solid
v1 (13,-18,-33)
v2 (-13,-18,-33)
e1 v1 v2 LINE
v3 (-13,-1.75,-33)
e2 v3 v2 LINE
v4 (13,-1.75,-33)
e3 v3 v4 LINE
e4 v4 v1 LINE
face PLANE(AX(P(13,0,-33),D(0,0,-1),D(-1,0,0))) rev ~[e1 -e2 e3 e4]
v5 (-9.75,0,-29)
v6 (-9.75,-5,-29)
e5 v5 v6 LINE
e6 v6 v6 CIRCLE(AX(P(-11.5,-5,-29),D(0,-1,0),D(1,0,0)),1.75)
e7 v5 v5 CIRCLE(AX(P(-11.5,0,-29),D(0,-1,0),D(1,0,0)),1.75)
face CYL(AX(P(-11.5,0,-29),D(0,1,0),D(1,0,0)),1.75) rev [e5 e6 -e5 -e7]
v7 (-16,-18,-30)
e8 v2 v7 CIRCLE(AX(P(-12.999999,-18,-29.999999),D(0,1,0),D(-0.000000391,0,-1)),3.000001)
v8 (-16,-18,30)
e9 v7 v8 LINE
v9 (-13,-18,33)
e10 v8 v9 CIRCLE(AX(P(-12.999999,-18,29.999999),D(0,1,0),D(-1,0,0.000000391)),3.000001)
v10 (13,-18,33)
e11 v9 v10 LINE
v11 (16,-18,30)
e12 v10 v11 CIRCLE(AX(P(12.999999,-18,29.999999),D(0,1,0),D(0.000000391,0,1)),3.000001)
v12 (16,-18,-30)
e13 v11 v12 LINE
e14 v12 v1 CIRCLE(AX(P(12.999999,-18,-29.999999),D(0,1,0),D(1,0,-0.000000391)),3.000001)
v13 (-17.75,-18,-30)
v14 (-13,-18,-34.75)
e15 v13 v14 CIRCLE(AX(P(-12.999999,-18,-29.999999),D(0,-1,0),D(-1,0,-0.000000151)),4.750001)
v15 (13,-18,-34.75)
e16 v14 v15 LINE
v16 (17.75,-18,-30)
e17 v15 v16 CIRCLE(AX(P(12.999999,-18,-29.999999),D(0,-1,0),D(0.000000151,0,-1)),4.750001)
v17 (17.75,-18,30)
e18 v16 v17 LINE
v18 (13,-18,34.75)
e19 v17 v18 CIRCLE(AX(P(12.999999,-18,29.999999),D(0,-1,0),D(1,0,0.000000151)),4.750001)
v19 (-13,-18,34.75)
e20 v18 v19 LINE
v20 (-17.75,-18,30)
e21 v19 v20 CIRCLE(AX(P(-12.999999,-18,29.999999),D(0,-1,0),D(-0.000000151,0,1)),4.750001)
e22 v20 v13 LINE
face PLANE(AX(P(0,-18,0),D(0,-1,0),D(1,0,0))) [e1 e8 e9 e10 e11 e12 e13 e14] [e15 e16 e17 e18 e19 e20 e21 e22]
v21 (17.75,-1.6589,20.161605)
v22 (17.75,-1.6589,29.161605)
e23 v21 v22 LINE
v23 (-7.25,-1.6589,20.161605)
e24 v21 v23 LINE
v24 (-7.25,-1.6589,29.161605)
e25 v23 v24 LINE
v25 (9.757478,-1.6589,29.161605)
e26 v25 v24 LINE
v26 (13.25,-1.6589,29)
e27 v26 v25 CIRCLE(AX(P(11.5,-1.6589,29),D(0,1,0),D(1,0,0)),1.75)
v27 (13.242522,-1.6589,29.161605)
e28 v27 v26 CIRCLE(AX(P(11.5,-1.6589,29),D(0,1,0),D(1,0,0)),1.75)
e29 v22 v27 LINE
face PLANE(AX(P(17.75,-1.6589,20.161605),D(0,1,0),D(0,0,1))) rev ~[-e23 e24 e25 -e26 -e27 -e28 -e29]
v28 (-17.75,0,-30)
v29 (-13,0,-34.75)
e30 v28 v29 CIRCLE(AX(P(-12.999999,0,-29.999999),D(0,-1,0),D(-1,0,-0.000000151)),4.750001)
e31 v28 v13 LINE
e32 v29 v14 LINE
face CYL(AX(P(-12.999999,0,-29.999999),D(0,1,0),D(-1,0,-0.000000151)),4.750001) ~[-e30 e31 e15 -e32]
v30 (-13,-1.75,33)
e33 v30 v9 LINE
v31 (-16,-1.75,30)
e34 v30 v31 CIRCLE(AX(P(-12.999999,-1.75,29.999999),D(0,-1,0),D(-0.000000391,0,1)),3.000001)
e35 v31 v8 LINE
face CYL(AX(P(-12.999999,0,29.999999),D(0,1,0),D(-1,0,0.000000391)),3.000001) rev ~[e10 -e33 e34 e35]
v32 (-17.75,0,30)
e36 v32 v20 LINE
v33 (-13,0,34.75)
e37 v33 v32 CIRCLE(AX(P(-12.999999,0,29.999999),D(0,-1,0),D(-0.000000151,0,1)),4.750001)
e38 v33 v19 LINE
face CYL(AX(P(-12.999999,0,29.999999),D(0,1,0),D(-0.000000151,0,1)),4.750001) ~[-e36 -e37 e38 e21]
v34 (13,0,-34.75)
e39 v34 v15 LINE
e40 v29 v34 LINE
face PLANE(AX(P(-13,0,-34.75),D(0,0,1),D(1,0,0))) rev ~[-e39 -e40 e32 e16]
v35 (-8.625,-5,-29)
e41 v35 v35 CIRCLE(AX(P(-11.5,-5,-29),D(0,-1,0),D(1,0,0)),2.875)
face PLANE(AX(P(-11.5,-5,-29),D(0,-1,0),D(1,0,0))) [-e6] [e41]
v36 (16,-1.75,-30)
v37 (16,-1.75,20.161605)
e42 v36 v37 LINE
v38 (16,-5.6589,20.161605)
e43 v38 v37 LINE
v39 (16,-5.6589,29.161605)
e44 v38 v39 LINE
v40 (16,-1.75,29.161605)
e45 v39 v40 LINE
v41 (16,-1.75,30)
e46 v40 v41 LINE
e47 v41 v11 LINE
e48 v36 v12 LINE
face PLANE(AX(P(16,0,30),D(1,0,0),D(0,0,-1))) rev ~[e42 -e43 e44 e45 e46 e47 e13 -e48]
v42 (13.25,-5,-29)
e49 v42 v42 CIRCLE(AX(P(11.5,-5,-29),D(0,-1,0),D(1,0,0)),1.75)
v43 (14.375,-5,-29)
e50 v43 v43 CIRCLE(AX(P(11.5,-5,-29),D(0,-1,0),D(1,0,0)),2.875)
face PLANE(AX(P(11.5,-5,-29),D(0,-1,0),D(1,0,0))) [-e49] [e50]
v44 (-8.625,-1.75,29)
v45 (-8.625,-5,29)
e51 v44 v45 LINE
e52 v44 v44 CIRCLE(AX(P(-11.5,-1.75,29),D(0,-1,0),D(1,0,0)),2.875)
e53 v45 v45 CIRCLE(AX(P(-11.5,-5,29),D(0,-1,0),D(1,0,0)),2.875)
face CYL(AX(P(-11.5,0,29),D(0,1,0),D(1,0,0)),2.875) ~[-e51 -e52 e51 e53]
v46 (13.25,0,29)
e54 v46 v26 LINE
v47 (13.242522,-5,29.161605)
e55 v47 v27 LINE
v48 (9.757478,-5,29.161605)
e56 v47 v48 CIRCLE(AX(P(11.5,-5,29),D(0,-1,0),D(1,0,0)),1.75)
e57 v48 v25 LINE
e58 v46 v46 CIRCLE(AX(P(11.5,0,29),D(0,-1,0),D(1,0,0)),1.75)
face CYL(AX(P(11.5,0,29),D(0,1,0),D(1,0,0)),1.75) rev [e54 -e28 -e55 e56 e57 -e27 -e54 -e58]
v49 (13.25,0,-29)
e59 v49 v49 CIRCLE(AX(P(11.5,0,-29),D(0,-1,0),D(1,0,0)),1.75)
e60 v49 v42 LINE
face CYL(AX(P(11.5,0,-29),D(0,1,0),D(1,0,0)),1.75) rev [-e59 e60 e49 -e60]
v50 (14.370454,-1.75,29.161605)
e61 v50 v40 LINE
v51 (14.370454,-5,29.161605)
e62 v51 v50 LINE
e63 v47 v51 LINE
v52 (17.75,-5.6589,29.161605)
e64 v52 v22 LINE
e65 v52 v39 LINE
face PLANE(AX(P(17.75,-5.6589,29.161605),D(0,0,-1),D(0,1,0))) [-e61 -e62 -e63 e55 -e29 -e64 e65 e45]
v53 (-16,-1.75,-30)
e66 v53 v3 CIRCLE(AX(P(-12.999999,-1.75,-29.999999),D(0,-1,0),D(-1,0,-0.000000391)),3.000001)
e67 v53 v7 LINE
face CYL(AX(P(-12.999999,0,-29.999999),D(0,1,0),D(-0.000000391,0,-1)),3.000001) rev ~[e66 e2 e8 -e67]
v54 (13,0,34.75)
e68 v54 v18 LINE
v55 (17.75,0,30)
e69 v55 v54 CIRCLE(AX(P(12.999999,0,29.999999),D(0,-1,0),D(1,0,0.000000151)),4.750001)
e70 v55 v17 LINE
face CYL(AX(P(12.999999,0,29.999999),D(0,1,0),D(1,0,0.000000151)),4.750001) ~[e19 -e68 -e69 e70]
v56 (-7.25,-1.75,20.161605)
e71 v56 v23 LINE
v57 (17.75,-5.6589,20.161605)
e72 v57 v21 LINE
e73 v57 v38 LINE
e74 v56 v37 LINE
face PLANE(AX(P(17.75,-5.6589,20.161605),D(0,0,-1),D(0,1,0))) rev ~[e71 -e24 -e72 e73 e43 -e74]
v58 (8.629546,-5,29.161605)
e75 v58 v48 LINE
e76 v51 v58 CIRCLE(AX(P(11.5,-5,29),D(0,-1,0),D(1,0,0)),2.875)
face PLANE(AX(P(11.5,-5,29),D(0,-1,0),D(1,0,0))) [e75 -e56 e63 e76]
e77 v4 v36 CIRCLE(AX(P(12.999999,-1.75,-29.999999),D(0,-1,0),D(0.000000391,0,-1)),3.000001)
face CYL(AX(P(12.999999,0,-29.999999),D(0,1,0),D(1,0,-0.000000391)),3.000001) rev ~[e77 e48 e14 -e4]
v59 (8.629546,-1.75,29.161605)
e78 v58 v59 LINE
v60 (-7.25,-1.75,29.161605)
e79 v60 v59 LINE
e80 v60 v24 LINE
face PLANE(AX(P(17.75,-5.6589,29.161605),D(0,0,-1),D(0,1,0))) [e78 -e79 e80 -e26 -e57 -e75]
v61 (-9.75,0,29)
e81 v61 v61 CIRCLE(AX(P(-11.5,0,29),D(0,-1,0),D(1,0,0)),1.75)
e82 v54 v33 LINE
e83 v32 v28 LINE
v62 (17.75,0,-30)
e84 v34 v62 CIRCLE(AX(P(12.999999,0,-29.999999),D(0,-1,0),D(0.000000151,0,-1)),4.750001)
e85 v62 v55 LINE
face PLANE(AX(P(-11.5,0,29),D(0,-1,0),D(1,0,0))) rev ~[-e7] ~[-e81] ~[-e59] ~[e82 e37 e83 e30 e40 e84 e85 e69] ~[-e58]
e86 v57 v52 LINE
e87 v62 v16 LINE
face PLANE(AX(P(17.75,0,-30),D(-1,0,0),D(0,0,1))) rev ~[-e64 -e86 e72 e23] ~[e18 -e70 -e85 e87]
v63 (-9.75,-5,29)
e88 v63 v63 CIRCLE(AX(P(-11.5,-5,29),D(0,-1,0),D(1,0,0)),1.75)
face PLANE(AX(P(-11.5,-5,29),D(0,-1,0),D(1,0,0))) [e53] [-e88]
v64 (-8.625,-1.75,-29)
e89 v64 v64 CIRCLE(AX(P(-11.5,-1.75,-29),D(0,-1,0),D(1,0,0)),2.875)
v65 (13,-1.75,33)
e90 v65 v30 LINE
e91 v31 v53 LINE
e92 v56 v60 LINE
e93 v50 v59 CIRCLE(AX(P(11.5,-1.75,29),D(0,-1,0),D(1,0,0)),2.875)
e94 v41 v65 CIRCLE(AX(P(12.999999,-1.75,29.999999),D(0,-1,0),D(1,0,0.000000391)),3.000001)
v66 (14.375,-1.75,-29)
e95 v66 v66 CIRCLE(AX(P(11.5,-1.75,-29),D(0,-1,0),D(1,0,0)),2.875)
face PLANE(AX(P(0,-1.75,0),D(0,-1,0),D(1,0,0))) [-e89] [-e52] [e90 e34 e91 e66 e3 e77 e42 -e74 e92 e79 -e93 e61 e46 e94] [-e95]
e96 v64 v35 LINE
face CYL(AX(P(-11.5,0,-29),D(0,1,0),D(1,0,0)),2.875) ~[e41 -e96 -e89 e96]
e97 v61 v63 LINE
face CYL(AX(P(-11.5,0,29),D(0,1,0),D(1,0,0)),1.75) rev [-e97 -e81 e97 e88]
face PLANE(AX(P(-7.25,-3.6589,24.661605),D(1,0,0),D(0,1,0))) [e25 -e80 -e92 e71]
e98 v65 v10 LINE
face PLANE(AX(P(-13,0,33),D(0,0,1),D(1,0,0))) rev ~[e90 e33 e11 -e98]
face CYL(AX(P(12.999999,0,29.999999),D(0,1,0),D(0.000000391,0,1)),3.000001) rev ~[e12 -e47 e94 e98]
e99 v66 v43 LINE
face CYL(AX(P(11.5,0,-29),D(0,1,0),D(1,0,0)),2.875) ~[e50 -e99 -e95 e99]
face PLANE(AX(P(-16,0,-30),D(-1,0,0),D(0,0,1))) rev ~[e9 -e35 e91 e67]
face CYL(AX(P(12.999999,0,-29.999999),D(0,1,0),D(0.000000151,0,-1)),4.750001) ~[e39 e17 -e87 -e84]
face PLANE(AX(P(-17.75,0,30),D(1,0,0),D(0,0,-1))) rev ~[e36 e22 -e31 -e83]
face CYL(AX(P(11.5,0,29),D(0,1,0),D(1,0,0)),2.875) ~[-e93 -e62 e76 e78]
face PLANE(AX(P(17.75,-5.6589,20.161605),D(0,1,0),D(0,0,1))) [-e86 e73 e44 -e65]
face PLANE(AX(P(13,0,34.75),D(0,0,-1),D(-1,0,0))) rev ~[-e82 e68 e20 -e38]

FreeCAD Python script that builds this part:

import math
import FreeCAD as App
import Part
import Sketcher
from FreeCAD import Vector

doc = App.newDocument("Part")
params = doc.addObject("Spreadsheet::Sheet", "Params")
for row, (alias, value) in enumerate([
    ("sketch1_radius", "3.000001 mm"),
    ("sketch1_diameter", "5.75 mm"),
    ("sketch1_width", "26 mm"),
    ("sketch1_height", "60 mm"),
    ("pad1_length", "1.75 mm"),
    ("sketch2_radius", "3.000001 mm"),
    ("sketch2_width", "26 mm"),
    ("sketch2_height", "60 mm"),
    ("sketch2_radius2", "4.750001 mm"),
    ("pad2_length", "18 mm"),
    ("sketch3_diameter", "3.5 mm"),
    ("sketch3_diameter2", "5.75 mm"),
    ("pad3_length", "5 mm"),
    ("sketch4_width", "4 mm"),
    ("sketch4_height", "9 mm"),
    ("pocket1_length", "25 mm"),
], start=1):
    params.set(f"A{row}", alias)
    params.set(f"B{row}", "=" + value)
    params.setAlias(f"B{row}", alias)

body = doc.addObject("PartDesign::Body", "Body")

sketch1 = body.newObject("Sketcher::SketchObject", "Sketch")
sketch1.AttachmentSupport = (doc.getObject("XZ_Plane"), [""])
sketch1.MapMode = "FlatFace"
sketch1.addGeometry(Part.ArcOfCircle(Part.Circle(Vector(-13, 30, 0), Vector(0, 0, 1), 3), math.radians(90), math.radians(180)), False)
sketch1.addGeometry(Part.LineSegment(Vector(-16, 30, 0), Vector(-16, -30, 0)), False)
sketch1.addGeometry(Part.ArcOfCircle(Part.Circle(Vector(-13, -30, 0), Vector(0, 0, 1), 3), math.radians(-180), math.radians(-90)), False)
sketch1.addGeometry(Part.LineSegment(Vector(-13, -33, 0), Vector(13, -33, 0)), False)
sketch1.addGeometry(Part.ArcOfCircle(Part.Circle(Vector(13, -30, 0), Vector(0, 0, 1), 3), math.radians(-90), math.radians(0)), False)
sketch1.addGeometry(Part.LineSegment(Vector(16, -30, 0), Vector(16, 30, 0)), False)
sketch1.addGeometry(Part.ArcOfCircle(Part.Circle(Vector(13, 30, 0), Vector(0, 0, 1), 3), math.radians(0), math.radians(90)), False)
sketch1.addGeometry(Part.LineSegment(Vector(13, 33, 0), Vector(-13, 33, 0)), False)
sketch1.addGeometry(Part.Circle(Vector(-11.5, -29, 0), Vector(0, 0, 1), 2.9), False)
sketch1.addGeometry(Part.Circle(Vector(11.5, -29, 0), Vector(0, 0, 1), 2.9), False)
sketch1.addGeometry(Part.Circle(Vector(-11.5, 29, 0), Vector(0, 0, 1), 2.9), False)
sketch1.addGeometry(Part.Circle(Vector(11.5, 29, 0), Vector(0, 0, 1), 2.9), False)
sketch1.addConstraint(Sketcher.Constraint("Tangent", 0, 2, 1, 1))
sketch1.addConstraint(Sketcher.Constraint("Tangent", 1, 2, 2, 1))
sketch1.addConstraint(Sketcher.Constraint("Tangent", 2, 2, 3, 1))
sketch1.addConstraint(Sketcher.Constraint("Tangent", 3, 2, 4, 1))
sketch1.addConstraint(Sketcher.Constraint("Tangent", 4, 2, 5, 1))
sketch1.addConstraint(Sketcher.Constraint("Tangent", 5, 2, 6, 1))
sketch1.addConstraint(Sketcher.Constraint("Tangent", 6, 2, 7, 1))
sketch1.addConstraint(Sketcher.Constraint("Tangent", 7, 2, 0, 1))
sketch1.addConstraint(Sketcher.Constraint("Vertical", 1))
sketch1.addConstraint(Sketcher.Constraint("Horizontal", 3))
sketch1.addConstraint(Sketcher.Constraint("Vertical", 5))
sketch1.addConstraint(Sketcher.Constraint("Horizontal", 7))
sketch1.addConstraint(Sketcher.Constraint("Equal", 0, 2))
sketch1.addConstraint(Sketcher.Constraint("Equal", 2, 4))
sketch1.addConstraint(Sketcher.Constraint("Equal", 4, 6))
sketch1.addConstraint(Sketcher.Constraint("Equal", 8, 9))
sketch1.addConstraint(Sketcher.Constraint("Equal", 9, 10))
sketch1.addConstraint(Sketcher.Constraint("Equal", 10, 11))
sketch1.addConstraint(Sketcher.Constraint("Symmetric", 0, 3, 4, 3, -1, 1))
sketch1.addConstraint(Sketcher.Constraint("Symmetric", 9, 3, 10, 3, -1, 1))
sketch1.addConstraint(Sketcher.Constraint("Symmetric", 8, 3, 11, 3, -1, 1))
sketch1.addConstraint(Sketcher.Constraint("Symmetric", 8, 3, 9, 3, -2))
sketch1.addConstraint(Sketcher.Constraint("Radius", 0, 3.000001))
sketch1.addConstraint(Sketcher.Constraint("Diameter", 8, 5.75))
sketch1.addConstraint(Sketcher.Constraint("DistanceX", 3, 1, 3, 2, 26.0))
sketch1.addConstraint(Sketcher.Constraint("DistanceY", 1, 2, 1, 1, 60.0))
sketch1.addConstraint(Sketcher.Constraint("DistanceY", 8, 3, -1, 1, 29.0))
sketch1.addConstraint(Sketcher.Constraint("DistanceX", 8, 3, 9, 3, 23.0))
sketch1.setExpression("Constraints[22]", "Params.sketch1_radius")
sketch1.setExpression("Constraints[23]", "Params.sketch1_diameter")
sketch1.setExpression("Constraints[24]", "Params.sketch1_width")
sketch1.setExpression("Constraints[25]", "Params.sketch1_height")
pad1 = body.newObject("PartDesign::Pad", "Pad")
pad1.Profile = sketch1
pad1.setExpression("Length", "Params.pad1_length")

sketch2 = body.newObject("Sketcher::SketchObject", "Sketch001")
sketch2.AttachmentSupport = (doc.getObject("XZ_Plane"), [""])
sketch2.MapMode = "FlatFace"
sketch2.addGeometry(Part.LineSegment(Vector(13, 34.8, 0), Vector(-13, 34.8, 0)), False)
sketch2.addGeometry(Part.ArcOfCircle(Part.Circle(Vector(-13, 30, 0), Vector(0, 0, 1), 4.8), math.radians(90), math.radians(180)), False)
sketch2.addGeometry(Part.LineSegment(Vector(-17.8, 30, 0), Vector(-17.8, -30, 0)), False)
sketch2.addGeometry(Part.ArcOfCircle(Part.Circle(Vector(-13, -30, 0), Vector(0, 0, 1), 4.8), math.radians(-180), math.radians(-90)), False)
sketch2.addGeometry(Part.LineSegment(Vector(-13, -34.8, 0), Vector(13, -34.8, 0)), False)
sketch2.addGeometry(Part.ArcOfCircle(Part.Circle(Vector(13, -30, 0), Vector(0, 0, 1), 4.8), math.radians(-90), math.radians(0)), False)
sketch2.addGeometry(Part.LineSegment(Vector(17.8, -30, 0), Vector(17.8, 30, 0)), False)
sketch2.addGeometry(Part.ArcOfCircle(Part.Circle(Vector(13, 30, 0), Vector(0, 0, 1), 4.8), math.radians(0), math.radians(90)), False)
sketch2.addGeometry(Part.ArcOfCircle(Part.Circle(Vector(-13, -30, 0), Vector(0, 0, 1), 3), math.radians(-180), math.radians(-90)), False)
sketch2.addGeometry(Part.LineSegment(Vector(-16, -30, 0), Vector(-16, 30, 0)), False)
sketch2.addGeometry(Part.ArcOfCircle(Part.Circle(Vector(-13, 30, 0), Vector(0, 0, 1), 3), math.radians(90), math.radians(180)), False)
sketch2.addGeometry(Part.LineSegment(Vector(-13, 33, 0), Vector(13, 33, 0)), False)
sketch2.addGeometry(Part.ArcOfCircle(Part.Circle(Vector(13, 30, 0), Vector(0, 0, 1), 3), math.radians(0), math.radians(90)), False)
sketch2.addGeometry(Part.LineSegment(Vector(16, 30, 0), Vector(16, -30, 0)), False)
sketch2.addGeometry(Part.ArcOfCircle(Part.Circle(Vector(13, -30, 0), Vector(0, 0, 1), 3), math.radians(-90), math.radians(0)), False)
sketch2.addGeometry(Part.LineSegment(Vector(13, -33, 0), Vector(-13, -33, 0)), False)
sketch2.addConstraint(Sketcher.Constraint("Tangent", 0, 2, 1, 1))
sketch2.addConstraint(Sketcher.Constraint("Tangent", 1, 2, 2, 1))
sketch2.addConstraint(Sketcher.Constraint("Tangent", 2, 2, 3, 1))
sketch2.addConstraint(Sketcher.Constraint("Tangent", 3, 2, 4, 1))
sketch2.addConstraint(Sketcher.Constraint("Tangent", 4, 2, 5, 1))
sketch2.addConstraint(Sketcher.Constraint("Tangent", 5, 2, 6, 1))
sketch2.addConstraint(Sketcher.Constraint("Tangent", 6, 2, 7, 1))
sketch2.addConstraint(Sketcher.Constraint("Tangent", 7, 2, 0, 1))
sketch2.addConstraint(Sketcher.Constraint("Tangent", 8, 1, 9, 1))
sketch2.addConstraint(Sketcher.Constraint("Tangent", 9, 2, 10, 2))
sketch2.addConstraint(Sketcher.Constraint("Tangent", 10, 1, 11, 1))
sketch2.addConstraint(Sketcher.Constraint("Tangent", 11, 2, 12, 2))
sketch2.addConstraint(Sketcher.Constraint("Tangent", 12, 1, 13, 1))
sketch2.addConstraint(Sketcher.Constraint("Tangent", 13, 2, 14, 2))
sketch2.addConstraint(Sketcher.Constraint("Tangent", 14, 1, 15, 1))
sketch2.addConstraint(Sketcher.Constraint("Tangent", 15, 2, 8, 2))
sketch2.addConstraint(Sketcher.Constraint("Horizontal", 0))
sketch2.addConstraint(Sketcher.Constraint("Vertical", 2))
sketch2.addConstraint(Sketcher.Constraint("Horizontal", 4))
sketch2.addConstraint(Sketcher.Constraint("Vertical", 6))
sketch2.addConstraint(Sketcher.Constraint("Vertical", 9))
sketch2.addConstraint(Sketcher.Constraint("Horizontal", 11))
sketch2.addConstraint(Sketcher.Constraint("Vertical", 13))
sketch2.addConstraint(Sketcher.Constraint("Horizontal", 15))
sketch2.addConstraint(Sketcher.Constraint("Coincident", 8, 3, 3, 3))
sketch2.addConstraint(Sketcher.Constraint("Coincident", 10, 3, 1, 3))
sketch2.addConstraint(Sketcher.Constraint("Coincident", 12, 3, 7, 3))
sketch2.addConstraint(Sketcher.Constraint("Equal", 1, 3))
sketch2.addConstraint(Sketcher.Constraint("Equal", 3, 5))
sketch2.addConstraint(Sketcher.Constraint("Equal", 5, 7))
sketch2.addConstraint(Sketcher.Constraint("Equal", 12, 14))
sketch2.addConstraint(Sketcher.Constraint("Symmetric", 1, 3, 5, 3, -1, 1))
sketch2.addConstraint(Sketcher.Constraint("Radius", 8, 3.000001))
sketch2.addConstraint(Sketcher.Constraint("DistanceX", 0, 2, 0, 1, 26.0))
sketch2.addConstraint(Sketcher.Constraint("DistanceY", 2, 2, 2, 1, 60.0))
sketch2.addConstraint(Sketcher.Constraint("Radius", 1, 4.750001))
sketch2.setExpression("Constraints[32]", "Params.sketch2_radius")
sketch2.setExpression("Constraints[33]", "Params.sketch2_width")
sketch2.setExpression("Constraints[34]", "Params.sketch2_height")
sketch2.setExpression("Constraints[35]", "Params.sketch2_radius2")
pad2 = body.newObject("PartDesign::Pad", "Pad001")
pad2.Profile = sketch2
pad2.setExpression("Length", "Params.pad2_length")

sketch3 = body.newObject("Sketcher::SketchObject", "Sketch002")
sketch3.AttachmentSupport = (doc.getObject("XZ_Plane"), [""])
sketch3.MapMode = "FlatFace"
sketch3.addGeometry(Part.Circle(Vector(-11.5, 29, 0), Vector(0, 0, 1), 2.9), False)
sketch3.addGeometry(Part.Circle(Vector(-11.5, 29, 0), Vector(0, 0, 1), 1.8), False)
sketch3.addGeometry(Part.Circle(Vector(11.5, 29, 0), Vector(0, 0, 1), 2.9), False)
sketch3.addGeometry(Part.Circle(Vector(11.5, 29, 0), Vector(0, 0, 1), 1.8), False)
sketch3.addGeometry(Part.Circle(Vector(11.5, -29, 0), Vector(0, 0, 1), 2.9), False)
sketch3.addGeometry(Part.Circle(Vector(11.5, -29, 0), Vector(0, 0, 1), 1.8), False)
sketch3.addGeometry(Part.Circle(Vector(-11.5, -29, 0), Vector(0, 0, 1), 2.9), False)
sketch3.addGeometry(Part.Circle(Vector(-11.5, -29, 0), Vector(0, 0, 1), 1.8), False)
sketch3.addConstraint(Sketcher.Constraint("Coincident", 1, 3, 0, 3))
sketch3.addConstraint(Sketcher.Constraint("Coincident", 3, 3, 2, 3))
sketch3.addConstraint(Sketcher.Constraint("Coincident", 5, 3, 4, 3))
sketch3.addConstraint(Sketcher.Constraint("Coincident", 7, 3, 6, 3))
sketch3.addConstraint(Sketcher.Constraint("Equal", 0, 2))
sketch3.addConstraint(Sketcher.Constraint("Equal", 1, 3))
sketch3.addConstraint(Sketcher.Constraint("Equal", 2, 4))
sketch3.addConstraint(Sketcher.Constraint("Equal", 3, 5))
sketch3.addConstraint(Sketcher.Constraint("Equal", 4, 6))
sketch3.addConstraint(Sketcher.Constraint("Equal", 5, 7))
sketch3.addConstraint(Sketcher.Constraint("Symmetric", 0, 3, 4, 3, -1, 1))
sketch3.addConstraint(Sketcher.Constraint("Symmetric", 2, 3, 6, 3, -1, 1))
sketch3.addConstraint(Sketcher.Constraint("Symmetric", 0, 3, 2, 3, -2))
sketch3.addConstraint(Sketcher.Constraint("Diameter", 1, 3.5))
sketch3.addConstraint(Sketcher.Constraint("Diameter", 0, 5.75))
sketch3.addConstraint(Sketcher.Constraint("DistanceY", -1, 1, 0, 3, 29.0))
sketch3.addConstraint(Sketcher.Constraint("DistanceX", 0, 3, 2, 3, 23.0))
sketch3.setExpression("Constraints[13]", "Params.sketch3_diameter")
sketch3.setExpression("Constraints[14]", "Params.sketch3_diameter2")
pad3 = body.newObject("PartDesign::Pad", "Pad002")
pad3.Profile = sketch3
pad3.setExpression("Length", "Params.pad3_length")

sketch4 = body.newObject("Sketcher::SketchObject", "Sketch003")
sketch4.AttachmentSupport = (doc.getObject("YZ_Plane"), [""])
sketch4.MapMode = "FlatFace"
sketch4.AttachmentOffset = App.Placement(Vector(0, 0, 17.75), App.Rotation())
sketch4.addGeometry(Part.LineSegment(Vector(-5.7, 29.2, 0), Vector(-5.7, 20.2, 0)), False)
sketch4.addGeometry(Part.LineSegment(Vector(-5.7, 20.2, 0), Vector(-1.7, 20.2, 0)), False)
sketch4.addGeometry(Part.LineSegment(Vector(-1.7, 20.2, 0), Vector(-1.7, 29.2, 0)), False)
sketch4.addGeometry(Part.LineSegment(Vector(-1.7, 29.2, 0), Vector(-5.7, 29.2, 0)), False)
sketch4.addConstraint(Sketcher.Constraint("Coincident", 0, 2, 1, 1))
sketch4.addConstraint(Sketcher.Constraint("Coincident", 1, 2, 2, 1))
sketch4.addConstraint(Sketcher.Constraint("Coincident", 2, 2, 3, 1))
sketch4.addConstraint(Sketcher.Constraint("Coincident", 3, 2, 0, 1))
sketch4.addConstraint(Sketcher.Constraint("Vertical", 0))
sketch4.addConstraint(Sketcher.Constraint("Horizontal", 1))
sketch4.addConstraint(Sketcher.Constraint("Vertical", 2))
sketch4.addConstraint(Sketcher.Constraint("Horizontal", 3))
sketch4.addConstraint(Sketcher.Constraint("DistanceX", 1, 1, 1, 2, 4.0))
sketch4.addConstraint(Sketcher.Constraint("DistanceY", 0, 2, 0, 1, 9.0))
sketch4.addConstraint(Sketcher.Constraint("DistanceX", 0, 2, -1, 1, 5.6589))
sketch4.addConstraint(Sketcher.Constraint("DistanceY", -1, 1, 0, 2, 20.161605))
sketch4.setExpression("Constraints[8]", "Params.sketch4_width")
sketch4.setExpression("Constraints[9]", "Params.sketch4_height")
pocket1 = body.newObject("PartDesign::Pocket", "Pocket")
pocket1.Profile = sketch4
pocket1.setExpression("Length", "Params.pocket1_length")

doc.recompute()
